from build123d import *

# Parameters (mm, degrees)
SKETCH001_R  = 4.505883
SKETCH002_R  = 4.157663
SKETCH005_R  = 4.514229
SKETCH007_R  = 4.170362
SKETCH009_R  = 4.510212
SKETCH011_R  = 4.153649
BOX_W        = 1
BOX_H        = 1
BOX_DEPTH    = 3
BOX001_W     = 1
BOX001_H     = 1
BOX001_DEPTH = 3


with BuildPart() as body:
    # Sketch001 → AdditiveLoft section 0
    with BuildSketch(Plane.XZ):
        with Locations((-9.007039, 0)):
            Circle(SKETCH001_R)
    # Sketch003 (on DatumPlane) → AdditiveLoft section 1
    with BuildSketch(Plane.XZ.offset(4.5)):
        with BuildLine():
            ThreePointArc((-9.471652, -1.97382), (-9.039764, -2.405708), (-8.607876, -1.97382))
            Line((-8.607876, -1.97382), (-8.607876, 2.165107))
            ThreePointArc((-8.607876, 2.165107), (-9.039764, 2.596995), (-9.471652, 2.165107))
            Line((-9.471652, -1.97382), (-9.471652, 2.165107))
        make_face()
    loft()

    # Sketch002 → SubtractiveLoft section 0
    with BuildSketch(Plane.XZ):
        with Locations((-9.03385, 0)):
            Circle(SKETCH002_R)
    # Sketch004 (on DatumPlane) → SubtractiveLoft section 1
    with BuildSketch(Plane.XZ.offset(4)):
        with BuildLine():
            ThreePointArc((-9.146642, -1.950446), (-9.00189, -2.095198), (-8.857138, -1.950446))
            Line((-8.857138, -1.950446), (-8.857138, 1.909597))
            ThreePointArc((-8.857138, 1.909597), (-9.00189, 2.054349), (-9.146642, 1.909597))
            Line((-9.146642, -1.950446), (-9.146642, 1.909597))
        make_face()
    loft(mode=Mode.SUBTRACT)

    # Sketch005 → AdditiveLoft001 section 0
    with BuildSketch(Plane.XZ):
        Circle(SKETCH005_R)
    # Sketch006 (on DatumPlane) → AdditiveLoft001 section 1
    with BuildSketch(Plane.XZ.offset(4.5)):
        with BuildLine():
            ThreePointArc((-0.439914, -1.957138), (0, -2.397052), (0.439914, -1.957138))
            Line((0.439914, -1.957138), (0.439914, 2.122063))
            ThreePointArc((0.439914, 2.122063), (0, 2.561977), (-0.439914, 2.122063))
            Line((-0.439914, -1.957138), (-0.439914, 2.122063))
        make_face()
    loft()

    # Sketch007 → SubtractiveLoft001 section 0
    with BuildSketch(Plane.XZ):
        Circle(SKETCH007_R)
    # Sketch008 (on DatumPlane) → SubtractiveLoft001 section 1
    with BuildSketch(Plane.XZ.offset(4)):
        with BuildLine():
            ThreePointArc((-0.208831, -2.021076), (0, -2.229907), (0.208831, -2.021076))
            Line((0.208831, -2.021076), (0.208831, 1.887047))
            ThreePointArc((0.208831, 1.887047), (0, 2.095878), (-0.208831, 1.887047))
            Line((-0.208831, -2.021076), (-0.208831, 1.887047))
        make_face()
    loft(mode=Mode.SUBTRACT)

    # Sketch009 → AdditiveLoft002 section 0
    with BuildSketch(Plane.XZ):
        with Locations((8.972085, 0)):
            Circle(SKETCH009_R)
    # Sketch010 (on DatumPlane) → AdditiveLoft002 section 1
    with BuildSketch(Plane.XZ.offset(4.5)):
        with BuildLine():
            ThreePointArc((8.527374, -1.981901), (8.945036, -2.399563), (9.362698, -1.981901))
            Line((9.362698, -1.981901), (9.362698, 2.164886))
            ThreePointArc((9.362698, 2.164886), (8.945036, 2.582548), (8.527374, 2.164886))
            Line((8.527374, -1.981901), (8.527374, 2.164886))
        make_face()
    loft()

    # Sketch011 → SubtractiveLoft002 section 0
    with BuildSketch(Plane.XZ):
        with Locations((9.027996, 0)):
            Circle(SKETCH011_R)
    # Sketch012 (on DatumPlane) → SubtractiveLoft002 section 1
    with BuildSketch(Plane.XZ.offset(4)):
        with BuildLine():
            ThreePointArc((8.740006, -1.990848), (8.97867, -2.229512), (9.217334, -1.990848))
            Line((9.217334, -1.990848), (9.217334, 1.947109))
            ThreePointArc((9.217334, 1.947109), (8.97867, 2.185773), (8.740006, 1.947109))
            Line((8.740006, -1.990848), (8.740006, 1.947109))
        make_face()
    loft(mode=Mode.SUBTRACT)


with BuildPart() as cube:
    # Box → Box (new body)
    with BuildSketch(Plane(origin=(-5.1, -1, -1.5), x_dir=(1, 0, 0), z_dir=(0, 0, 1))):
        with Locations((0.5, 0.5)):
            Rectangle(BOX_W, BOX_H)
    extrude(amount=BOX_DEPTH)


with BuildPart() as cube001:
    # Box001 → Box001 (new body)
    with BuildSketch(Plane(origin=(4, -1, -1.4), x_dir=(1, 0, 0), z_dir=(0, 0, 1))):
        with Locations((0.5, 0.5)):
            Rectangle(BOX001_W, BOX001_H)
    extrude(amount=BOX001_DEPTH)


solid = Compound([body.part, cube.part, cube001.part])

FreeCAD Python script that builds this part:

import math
import FreeCAD as App
import Part
import Sketcher

V = App.Vector


def add_polygon(sketch, points):
    """Adds a closed chain of lines whose ends are joined by coincident constraints."""
    first, n = sketch.GeometryCount, len(points)
    for a, b in zip(points, points[1:] + points[:1]):
        sketch.addGeometry(Part.LineSegment(App.Vector(*a, 0), App.Vector(*b, 0)), False)
    for i in range(n):
        sketch.addConstraint(Sketcher.Constraint("Coincident", first + i, 2, first + (i + 1) % n, 1))

doc = App.newDocument("Part")
body = doc.addObject("PartDesign::Body", "Body")

# Sketch on XZ plane
sketch1 = doc.addObject("Sketcher::SketchObject", "Sketch")
body.addObject(sketch1)
sketch1.AttachmentSupport = (doc.XZ_Plane, [""])
sketch1.MapMode = "FlatFace"
sketch1.addGeometry(Part.Circle(V(-9, 0, 0), V(0, 0, 1), 4.5), False)
sketch1.addConstraint([
    Sketcher.Constraint("PointOnObject", 0, 3, -1),
    Sketcher.Constraint("Diameter", 0, 9.011766),
    Sketcher.Constraint("DistanceX", 0, 3, -1, 1, 9.007039),
])

# Sketch on XZ plane
sketch2 = doc.addObject("Sketcher::SketchObject", "Sketch001")
body.addObject(sketch2)
sketch2.AttachmentSupport = (doc.XZ_Plane, [""])
sketch2.MapMode = "FlatFace"
sketch2.AttachmentOffset = App.Placement(V(0, 0, 4.5), App.Rotation())
sketch2.addGeometry([
    Part.ArcOfCircle(Part.Circle(V(-9.04, -1.97, 0), V(0, 0, 1), 0.43), math.radians(180), math.radians(360)),
    Part.LineSegment(V(-8.61, -1.97, 0), V(-8.61, 2.17, 0)),
    Part.ArcOfCircle(Part.Circle(V(-9.04, 2.17, 0), V(0, 0, 1), 0.43), math.radians(0), math.radians(180)),
    Part.LineSegment(V(-9.47, 2.17, 0), V(-9.47, -1.97, 0)),
], False)
sketch2.addConstraint([
    Sketcher.Constraint("Tangent", 0, 2, 1, 1),
    Sketcher.Constraint("Tangent", 1, 2, 2, 1),
    Sketcher.Constraint("Tangent", 2, 2, 3, 1),
    Sketcher.Constraint("Tangent", 3, 2, 0, 1),
    Sketcher.Constraint("Vertical", 1),
    Sketcher.Constraint("Vertical", 3),
    Sketcher.Constraint("Radius", 0, 0.431888),
    Sketcher.Constraint("DistanceY", 1, 1, 1, 2, 4.138927),
    Sketcher.Constraint("DistanceY", 0, 3, -1, 1, 1.97382),
    Sketcher.Constraint("DistanceX", 0, 3, -1, 1, 9.039764),
])

additiveloft = doc.addObject("PartDesign::AdditiveLoft", "AdditiveLoft")
body.addObject(additiveloft)
additiveloft.Profile = sketch1
additiveloft.Sections = [sketch2]

# Sketch on XZ plane
sketch3 = doc.addObject("Sketcher::SketchObject", "Sketch002")
body.addObject(sketch3)
sketch3.AttachmentSupport = (doc.XZ_Plane, [""])
sketch3.MapMode = "FlatFace"
sketch3.addGeometry(Part.Circle(V(-9, 0, 0), V(0, 0, 1), 4.2), False)
sketch3.addConstraint([
    Sketcher.Constraint("PointOnObject", 0, 3, -1),
    Sketcher.Constraint("Diameter", 0, 8.315326),
    Sketcher.Constraint("DistanceX", 0, 3, -1, 1, 9.03385),
])

# Sketch on XZ plane
sketch4 = doc.addObject("Sketcher::SketchObject", "Sketch003")
body.addObject(sketch4)
sketch4.AttachmentSupport = (doc.XZ_Plane, [""])
sketch4.MapMode = "FlatFace"
sketch4.AttachmentOffset = App.Placement(V(0, 0, 4), App.Rotation())
sketch4.addGeometry([
    Part.ArcOfCircle(Part.Circle(V(-9, -1.95, 0), V(0, 0, 1), 0.14), math.radians(180), math.radians(360)),
    Part.LineSegment(V(-8.86, -1.95, 0), V(-8.86, 1.91, 0)),
    Part.ArcOfCircle(Part.Circle(V(-9, 1.91, 0), V(0, 0, 1), 0.14), math.radians(0), math.radians(180)),
    Part.LineSegment(V(-9.15, 1.91, 0), V(-9.15, -1.95, 0)),
], False)
sketch4.addConstraint([
    Sketcher.Constraint("Tangent", 0, 2, 1, 1),
    Sketcher.Constraint("Tangent", 1, 2, 2, 1),
    Sketcher.Constraint("Tangent", 2, 2, 3, 1),
    Sketcher.Constraint("Tangent", 3, 2, 0, 1),
    Sketcher.Constraint("Vertical", 1),
    Sketcher.Constraint("Vertical", 3),
    Sketcher.Constraint("Radius", 0, 0.144752),
    Sketcher.Constraint("DistanceY", 1, 1, 1, 2, 3.860043),
    Sketcher.Constraint("DistanceX", 0, 3, -1, 1, 9.00189),
    Sketcher.Constraint("DistanceY", 0, 3, -1, 1, 1.950446),
])

subtractiveloft = doc.addObject("PartDesign::SubtractiveLoft", "SubtractiveLoft")
body.addObject(subtractiveloft)
subtractiveloft.Profile = sketch3
subtractiveloft.Sections = [sketch4]

# Sketch on XZ plane
sketch5 = doc.addObject("Sketcher::SketchObject", "Sketch004")
body.addObject(sketch5)
sketch5.AttachmentSupport = (doc.XZ_Plane, [""])
sketch5.MapMode = "FlatFace"
sketch5.addGeometry(Part.Circle(V(0, 0, 0), V(0, 0, 1), 4.5), False)
sketch5.addConstraint([
    Sketcher.Constraint("Coincident", 0, 3, -1, 1),
    Sketcher.Constraint("Diameter", 0, 9.028458),
])

# Sketch on XZ plane
sketch6 = doc.addObject("Sketcher::SketchObject", "Sketch005")
body.addObject(sketch6)
sketch6.AttachmentSupport = (doc.XZ_Plane, [""])
sketch6.MapMode = "FlatFace"
sketch6.AttachmentOffset = App.Placement(V(0, 0, 4.5), App.Rotation())
sketch6.addGeometry([
    Part.ArcOfCircle(Part.Circle(V(0, -1.96, 0), V(0, 0, 1), 0.44), math.radians(180), math.radians(360)),
    Part.LineSegment(V(0.44, -1.96, 0), V(0.44, 2.12, 0)),
    Part.ArcOfCircle(Part.Circle(V(0, 2.12, 0), V(0, 0, 1), 0.44), math.radians(0), math.radians(180)),
    Part.LineSegment(V(-0.44, 2.12, 0), V(-0.44, -1.96, 0)),
], False)
sketch6.addConstraint([
    Sketcher.Constraint("Tangent", 0, 2, 1, 1),
    Sketcher.Constraint("Tangent", 1, 2, 2, 1),
    Sketcher.Constraint("Tangent", 2, 2, 3, 1),
    Sketcher.Constraint("Tangent", 3, 2, 0, 1),
    Sketcher.Constraint("Vertical", 1),
    Sketcher.Constraint("Vertical", 3),
    Sketcher.Constraint("PointOnObject", 0, 3, -2),
    Sketcher.Constraint("DistanceY", 1, 1, 1, 2, 4.079201),
    Sketcher.Constraint("Radius", 0, 0.439914),
    Sketcher.Constraint("DistanceY", 0, 3, -1, 1, 1.957138),
])

additiveloft2 = doc.addObject("PartDesign::AdditiveLoft", "AdditiveLoft001")
body.addObject(additiveloft2)
additiveloft2.Profile = sketch5
additiveloft2.Sections = [sketch6]

# Sketch on XZ plane
sketch7 = doc.addObject("Sketcher::SketchObject", "Sketch006")
body.addObject(sketch7)
sketch7.AttachmentSupport = (doc.XZ_Plane, [""])
sketch7.MapMode = "FlatFace"
sketch7.addGeometry(Part.Circle(V(0, 0, 0), V(0, 0, 1), 4.2), False)
sketch7.addConstraint([
    Sketcher.Constraint("Coincident", 0, 3, -1, 1),
    Sketcher.Constraint("Diameter", 0, 8.340724),
])

# Sketch on XZ plane
sketch8 = doc.addObject("Sketcher::SketchObject", "Sketch007")
body.addObject(sketch8)
sketch8.AttachmentSupport = (doc.XZ_Plane, [""])
sketch8.MapMode = "FlatFace"
sketch8.AttachmentOffset = App.Placement(V(0, 0, 4), App.Rotation())
sketch8.addGeometry([
    Part.ArcOfCircle(Part.Circle(V(0, -2.02, 0), V(0, 0, 1), 0.21), math.radians(180), math.radians(360)),
    Part.LineSegment(V(0.21, -2.02, 0), V(0.21, 1.89, 0)),
    Part.ArcOfCircle(Part.Circle(V(0, 1.89, 0), V(0, 0, 1), 0.21), math.radians(0), math.radians(180)),
    Part.LineSegment(V(-0.21, 1.89, 0), V(-0.21, -2.02, 0)),
], False)
sketch8.addConstraint([
    Sketcher.Constraint("Tangent", 0, 2, 1, 1),
    Sketcher.Constraint("Tangent", 1, 2, 2, 1),
    Sketcher.Constraint("Tangent", 2, 2, 3, 1),
    Sketcher.Constraint("Tangent", 3, 2, 0, 1),
    Sketcher.Constraint("Vertical", 1),
    Sketcher.Constraint("Vertical", 3),
    Sketcher.Constraint("PointOnObject", 0, 3, -2),
    Sketcher.Constraint("Radius", 0, 0.208831),
    Sketcher.Constraint("DistanceY", 1, 1, 1, 2, 3.908123),
    Sketcher.Constraint("DistanceY", 0, 3, -1, 1, 2.021076),
])

subtractiveloft2 = doc.addObject("PartDesign::SubtractiveLoft", "SubtractiveLoft001")
body.addObject(subtractiveloft2)
subtractiveloft2.Profile = sketch7
subtractiveloft2.Sections = [sketch8]

# Sketch on XZ plane
sketch9 = doc.addObject("Sketcher::SketchObject", "Sketch008")
body.addObject(sketch9)
sketch9.AttachmentSupport = (doc.XZ_Plane, [""])
sketch9.MapMode = "FlatFace"
sketch9.addGeometry(Part.Circle(V(9, 0, 0), V(0, 0, 1), 4.5), False)
sketch9.addConstraint([
    Sketcher.Constraint("PointOnObject", 0, 3, -1),
    Sketcher.Constraint("Diameter", 0, 9.020424),
    Sketcher.Constraint("DistanceX", -1, 1, 0, 3, 8.972085),
])

# Sketch on XZ plane
sketch10 = doc.addObject("Sketcher::SketchObject", "Sketch009")
body.addObject(sketch10)
sketch10.AttachmentSupport = (doc.XZ_Plane, [""])
sketch10.MapMode = "FlatFace"
sketch10.AttachmentOffset = App.Placement(V(0, 0, 4.5), App.Rotation())
sketch10.addGeometry([
    Part.ArcOfCircle(Part.Circle(V(8.95, -1.98, 0), V(0, 0, 1), 0.42), math.radians(180), math.radians(360)),
    Part.LineSegment(V(9.36, -1.98, 0), V(9.36, 2.16, 0)),
    Part.ArcOfCircle(Part.Circle(V(8.95, 2.16, 0), V(0, 0, 1), 0.42), math.radians(0), math.radians(180)),
    Part.LineSegment(V(8.53, 2.16, 0), V(8.53, -1.98, 0)),
], False)
sketch10.addConstraint([
    Sketcher.Constraint("Tangent", 0, 2, 1, 1),
    Sketcher.Constraint("Tangent", 1, 2, 2, 1),
    Sketcher.Constraint("Tangent", 2, 2, 3, 1),
    Sketcher.Constraint("Tangent", 3, 2, 0, 1),
    Sketcher.Constraint("Vertical", 1),
    Sketcher.Constraint("Vertical", 3),
    Sketcher.Constraint("Radius", 0, 0.417662),
    Sketcher.Constraint("DistanceY", 0, 3, -1, 1, 1.981901),
    Sketcher.Constraint("DistanceY", 1, 1, 1, 2, 4.146787),
    Sketcher.Constraint("DistanceX", -1, 1, 0, 3, 8.945036),
])

additiveloft3 = doc.addObject("PartDesign::AdditiveLoft", "AdditiveLoft002")
body.addObject(additiveloft3)
additiveloft3.Profile = sketch9
additiveloft3.Sections = [sketch10]

# Sketch on XZ plane
sketch11 = doc.addObject("Sketcher::SketchObject", "Sketch010")
body.addObject(sketch11)
sketch11.AttachmentSupport = (doc.XZ_Plane, [""])
sketch11.MapMode = "FlatFace"
sketch11.addGeometry(Part.Circle(V(9, 0, 0), V(0, 0, 1), 4.2), False)
sketch11.addConstraint([
    Sketcher.Constraint("PointOnObject", 0, 3, -1),
    Sketcher.Constraint("Diameter", 0, 8.307298),
    Sketcher.Constraint("DistanceX", -1, 1, 0, 3, 9.027996),
])

# Sketch on XZ plane
sketch12 = doc.addObject("Sketcher::SketchObject", "Sketch011")
body.addObject(sketch12)
sketch12.AttachmentSupport = (doc.XZ_Plane, [""])
sketch12.MapMode = "FlatFace"
sketch12.AttachmentOffset = App.Placement(V(0, 0, 4), App.Rotation())
sketch12.addGeometry([
    Part.ArcOfCircle(Part.Circle(V(8.98, -1.99, 0), V(0, 0, 1), 0.24), math.radians(180), math.radians(360)),
    Part.LineSegment(V(9.22, -1.99, 0), V(9.22, 1.95, 0)),
    Part.ArcOfCircle(Part.Circle(V(8.98, 1.95, 0), V(0, 0, 1), 0.24), math.radians(0), math.radians(180)),
    Part.LineSegment(V(8.74, 1.95, 0), V(8.74, -1.99, 0)),
], False)
sketch12.addConstraint([
    Sketcher.Constraint("Tangent", 0, 2, 1, 1),
    Sketcher.Constraint("Tangent", 1, 2, 2, 1),
    Sketcher.Constraint("Tangent", 2, 2, 3, 1),
    Sketcher.Constraint("Tangent", 3, 2, 0, 1),
    Sketcher.Constraint("Vertical", 1),
    Sketcher.Constraint("Vertical", 3),
    Sketcher.Constraint("Radius", 0, 0.238664),
    Sketcher.Constraint("DistanceY", 1, 1, 1, 2, 3.937957),
    Sketcher.Constraint("DistanceX", -1, 1, 0, 3, 8.97867),
    Sketcher.Constraint("DistanceY", -1, 1, 2, 3, 1.947109),
])

subtractiveloft3 = doc.addObject("PartDesign::SubtractiveLoft", "SubtractiveLoft002")
body.addObject(subtractiveloft3)
subtractiveloft3.Profile = sketch11
subtractiveloft3.Sections = [sketch12]
body2 = doc.addObject("PartDesign::Body", "Body001")

# Sketch on XY plane
sketch13 = doc.addObject("Sketcher::SketchObject", "Sketch012")
body2.addObject(sketch13)
sketch13.AttachmentSupport = (doc.getObject("XY_Plane001"), [""])
sketch13.MapMode = "FlatFace"
sketch13.AttachmentOffset = App.Placement(V(0, 0, -1.5), App.Rotation())
add_polygon(sketch13, [(-5.1, 0), (-5.1, -1), (-4.1, -1), (-4.1, 0)])  # lines 0-3
sketch13.addConstraint([
    Sketcher.Constraint("Vertical", 0),
    Sketcher.Constraint("Horizontal", 1),
    Sketcher.Constraint("Vertical", 2),
    Sketcher.Constraint("Horizontal", 3),
    Sketcher.Constraint("PointOnObject", 2, 2, -1),
    Sketcher.Constraint("Equal", 3, 0),
    Sketcher.Constraint("DistanceX", 1, 1, 1, 2, 1.0),
    Sketcher.Constraint("DistanceX", 0, 2, -1, 1, 5.1),
])
pad1 = doc.addObject("PartDesign::Pad", "Pad")
body2.addObject(pad1)
pad1.Profile = sketch13
pad1.Length = 3
body3 = doc.addObject("PartDesign::Body", "Body002")

# Sketch on XY plane
sketch14 = doc.addObject("Sketcher::SketchObject", "Sketch013")
body3.addObject(sketch14)
sketch14.AttachmentSupport = (doc.getObject("XY_Plane002"), [""])
sketch14.MapMode = "FlatFace"
sketch14.AttachmentOffset = App.Placement(V(0, 0, -1.4), App.Rotation())
add_polygon(sketch14, [(4, 0), (4, -1), (5, -1), (5, 0)])  # lines 0-3
sketch14.addConstraint([
    Sketcher.Constraint("Vertical", 0),
    Sketcher.Constraint("Horizontal", 1),
    Sketcher.Constraint("Vertical", 2),
    Sketcher.Constraint("Horizontal", 3),
    Sketcher.Constraint("PointOnObject", 2, 2, -1),
    Sketcher.Constraint("Equal", 3, 0),
    Sketcher.Constraint("DistanceX", 1, 1, 1, 2, 1.0),
    Sketcher.Constraint("DistanceX", -1, 1, 0, 2, 4.0),
])
pad2 = doc.addObject("PartDesign::Pad", "Pad001")
body3.addObject(pad2)
pad2.Profile = sketch14
pad2.Length = 3

doc.recompute()
